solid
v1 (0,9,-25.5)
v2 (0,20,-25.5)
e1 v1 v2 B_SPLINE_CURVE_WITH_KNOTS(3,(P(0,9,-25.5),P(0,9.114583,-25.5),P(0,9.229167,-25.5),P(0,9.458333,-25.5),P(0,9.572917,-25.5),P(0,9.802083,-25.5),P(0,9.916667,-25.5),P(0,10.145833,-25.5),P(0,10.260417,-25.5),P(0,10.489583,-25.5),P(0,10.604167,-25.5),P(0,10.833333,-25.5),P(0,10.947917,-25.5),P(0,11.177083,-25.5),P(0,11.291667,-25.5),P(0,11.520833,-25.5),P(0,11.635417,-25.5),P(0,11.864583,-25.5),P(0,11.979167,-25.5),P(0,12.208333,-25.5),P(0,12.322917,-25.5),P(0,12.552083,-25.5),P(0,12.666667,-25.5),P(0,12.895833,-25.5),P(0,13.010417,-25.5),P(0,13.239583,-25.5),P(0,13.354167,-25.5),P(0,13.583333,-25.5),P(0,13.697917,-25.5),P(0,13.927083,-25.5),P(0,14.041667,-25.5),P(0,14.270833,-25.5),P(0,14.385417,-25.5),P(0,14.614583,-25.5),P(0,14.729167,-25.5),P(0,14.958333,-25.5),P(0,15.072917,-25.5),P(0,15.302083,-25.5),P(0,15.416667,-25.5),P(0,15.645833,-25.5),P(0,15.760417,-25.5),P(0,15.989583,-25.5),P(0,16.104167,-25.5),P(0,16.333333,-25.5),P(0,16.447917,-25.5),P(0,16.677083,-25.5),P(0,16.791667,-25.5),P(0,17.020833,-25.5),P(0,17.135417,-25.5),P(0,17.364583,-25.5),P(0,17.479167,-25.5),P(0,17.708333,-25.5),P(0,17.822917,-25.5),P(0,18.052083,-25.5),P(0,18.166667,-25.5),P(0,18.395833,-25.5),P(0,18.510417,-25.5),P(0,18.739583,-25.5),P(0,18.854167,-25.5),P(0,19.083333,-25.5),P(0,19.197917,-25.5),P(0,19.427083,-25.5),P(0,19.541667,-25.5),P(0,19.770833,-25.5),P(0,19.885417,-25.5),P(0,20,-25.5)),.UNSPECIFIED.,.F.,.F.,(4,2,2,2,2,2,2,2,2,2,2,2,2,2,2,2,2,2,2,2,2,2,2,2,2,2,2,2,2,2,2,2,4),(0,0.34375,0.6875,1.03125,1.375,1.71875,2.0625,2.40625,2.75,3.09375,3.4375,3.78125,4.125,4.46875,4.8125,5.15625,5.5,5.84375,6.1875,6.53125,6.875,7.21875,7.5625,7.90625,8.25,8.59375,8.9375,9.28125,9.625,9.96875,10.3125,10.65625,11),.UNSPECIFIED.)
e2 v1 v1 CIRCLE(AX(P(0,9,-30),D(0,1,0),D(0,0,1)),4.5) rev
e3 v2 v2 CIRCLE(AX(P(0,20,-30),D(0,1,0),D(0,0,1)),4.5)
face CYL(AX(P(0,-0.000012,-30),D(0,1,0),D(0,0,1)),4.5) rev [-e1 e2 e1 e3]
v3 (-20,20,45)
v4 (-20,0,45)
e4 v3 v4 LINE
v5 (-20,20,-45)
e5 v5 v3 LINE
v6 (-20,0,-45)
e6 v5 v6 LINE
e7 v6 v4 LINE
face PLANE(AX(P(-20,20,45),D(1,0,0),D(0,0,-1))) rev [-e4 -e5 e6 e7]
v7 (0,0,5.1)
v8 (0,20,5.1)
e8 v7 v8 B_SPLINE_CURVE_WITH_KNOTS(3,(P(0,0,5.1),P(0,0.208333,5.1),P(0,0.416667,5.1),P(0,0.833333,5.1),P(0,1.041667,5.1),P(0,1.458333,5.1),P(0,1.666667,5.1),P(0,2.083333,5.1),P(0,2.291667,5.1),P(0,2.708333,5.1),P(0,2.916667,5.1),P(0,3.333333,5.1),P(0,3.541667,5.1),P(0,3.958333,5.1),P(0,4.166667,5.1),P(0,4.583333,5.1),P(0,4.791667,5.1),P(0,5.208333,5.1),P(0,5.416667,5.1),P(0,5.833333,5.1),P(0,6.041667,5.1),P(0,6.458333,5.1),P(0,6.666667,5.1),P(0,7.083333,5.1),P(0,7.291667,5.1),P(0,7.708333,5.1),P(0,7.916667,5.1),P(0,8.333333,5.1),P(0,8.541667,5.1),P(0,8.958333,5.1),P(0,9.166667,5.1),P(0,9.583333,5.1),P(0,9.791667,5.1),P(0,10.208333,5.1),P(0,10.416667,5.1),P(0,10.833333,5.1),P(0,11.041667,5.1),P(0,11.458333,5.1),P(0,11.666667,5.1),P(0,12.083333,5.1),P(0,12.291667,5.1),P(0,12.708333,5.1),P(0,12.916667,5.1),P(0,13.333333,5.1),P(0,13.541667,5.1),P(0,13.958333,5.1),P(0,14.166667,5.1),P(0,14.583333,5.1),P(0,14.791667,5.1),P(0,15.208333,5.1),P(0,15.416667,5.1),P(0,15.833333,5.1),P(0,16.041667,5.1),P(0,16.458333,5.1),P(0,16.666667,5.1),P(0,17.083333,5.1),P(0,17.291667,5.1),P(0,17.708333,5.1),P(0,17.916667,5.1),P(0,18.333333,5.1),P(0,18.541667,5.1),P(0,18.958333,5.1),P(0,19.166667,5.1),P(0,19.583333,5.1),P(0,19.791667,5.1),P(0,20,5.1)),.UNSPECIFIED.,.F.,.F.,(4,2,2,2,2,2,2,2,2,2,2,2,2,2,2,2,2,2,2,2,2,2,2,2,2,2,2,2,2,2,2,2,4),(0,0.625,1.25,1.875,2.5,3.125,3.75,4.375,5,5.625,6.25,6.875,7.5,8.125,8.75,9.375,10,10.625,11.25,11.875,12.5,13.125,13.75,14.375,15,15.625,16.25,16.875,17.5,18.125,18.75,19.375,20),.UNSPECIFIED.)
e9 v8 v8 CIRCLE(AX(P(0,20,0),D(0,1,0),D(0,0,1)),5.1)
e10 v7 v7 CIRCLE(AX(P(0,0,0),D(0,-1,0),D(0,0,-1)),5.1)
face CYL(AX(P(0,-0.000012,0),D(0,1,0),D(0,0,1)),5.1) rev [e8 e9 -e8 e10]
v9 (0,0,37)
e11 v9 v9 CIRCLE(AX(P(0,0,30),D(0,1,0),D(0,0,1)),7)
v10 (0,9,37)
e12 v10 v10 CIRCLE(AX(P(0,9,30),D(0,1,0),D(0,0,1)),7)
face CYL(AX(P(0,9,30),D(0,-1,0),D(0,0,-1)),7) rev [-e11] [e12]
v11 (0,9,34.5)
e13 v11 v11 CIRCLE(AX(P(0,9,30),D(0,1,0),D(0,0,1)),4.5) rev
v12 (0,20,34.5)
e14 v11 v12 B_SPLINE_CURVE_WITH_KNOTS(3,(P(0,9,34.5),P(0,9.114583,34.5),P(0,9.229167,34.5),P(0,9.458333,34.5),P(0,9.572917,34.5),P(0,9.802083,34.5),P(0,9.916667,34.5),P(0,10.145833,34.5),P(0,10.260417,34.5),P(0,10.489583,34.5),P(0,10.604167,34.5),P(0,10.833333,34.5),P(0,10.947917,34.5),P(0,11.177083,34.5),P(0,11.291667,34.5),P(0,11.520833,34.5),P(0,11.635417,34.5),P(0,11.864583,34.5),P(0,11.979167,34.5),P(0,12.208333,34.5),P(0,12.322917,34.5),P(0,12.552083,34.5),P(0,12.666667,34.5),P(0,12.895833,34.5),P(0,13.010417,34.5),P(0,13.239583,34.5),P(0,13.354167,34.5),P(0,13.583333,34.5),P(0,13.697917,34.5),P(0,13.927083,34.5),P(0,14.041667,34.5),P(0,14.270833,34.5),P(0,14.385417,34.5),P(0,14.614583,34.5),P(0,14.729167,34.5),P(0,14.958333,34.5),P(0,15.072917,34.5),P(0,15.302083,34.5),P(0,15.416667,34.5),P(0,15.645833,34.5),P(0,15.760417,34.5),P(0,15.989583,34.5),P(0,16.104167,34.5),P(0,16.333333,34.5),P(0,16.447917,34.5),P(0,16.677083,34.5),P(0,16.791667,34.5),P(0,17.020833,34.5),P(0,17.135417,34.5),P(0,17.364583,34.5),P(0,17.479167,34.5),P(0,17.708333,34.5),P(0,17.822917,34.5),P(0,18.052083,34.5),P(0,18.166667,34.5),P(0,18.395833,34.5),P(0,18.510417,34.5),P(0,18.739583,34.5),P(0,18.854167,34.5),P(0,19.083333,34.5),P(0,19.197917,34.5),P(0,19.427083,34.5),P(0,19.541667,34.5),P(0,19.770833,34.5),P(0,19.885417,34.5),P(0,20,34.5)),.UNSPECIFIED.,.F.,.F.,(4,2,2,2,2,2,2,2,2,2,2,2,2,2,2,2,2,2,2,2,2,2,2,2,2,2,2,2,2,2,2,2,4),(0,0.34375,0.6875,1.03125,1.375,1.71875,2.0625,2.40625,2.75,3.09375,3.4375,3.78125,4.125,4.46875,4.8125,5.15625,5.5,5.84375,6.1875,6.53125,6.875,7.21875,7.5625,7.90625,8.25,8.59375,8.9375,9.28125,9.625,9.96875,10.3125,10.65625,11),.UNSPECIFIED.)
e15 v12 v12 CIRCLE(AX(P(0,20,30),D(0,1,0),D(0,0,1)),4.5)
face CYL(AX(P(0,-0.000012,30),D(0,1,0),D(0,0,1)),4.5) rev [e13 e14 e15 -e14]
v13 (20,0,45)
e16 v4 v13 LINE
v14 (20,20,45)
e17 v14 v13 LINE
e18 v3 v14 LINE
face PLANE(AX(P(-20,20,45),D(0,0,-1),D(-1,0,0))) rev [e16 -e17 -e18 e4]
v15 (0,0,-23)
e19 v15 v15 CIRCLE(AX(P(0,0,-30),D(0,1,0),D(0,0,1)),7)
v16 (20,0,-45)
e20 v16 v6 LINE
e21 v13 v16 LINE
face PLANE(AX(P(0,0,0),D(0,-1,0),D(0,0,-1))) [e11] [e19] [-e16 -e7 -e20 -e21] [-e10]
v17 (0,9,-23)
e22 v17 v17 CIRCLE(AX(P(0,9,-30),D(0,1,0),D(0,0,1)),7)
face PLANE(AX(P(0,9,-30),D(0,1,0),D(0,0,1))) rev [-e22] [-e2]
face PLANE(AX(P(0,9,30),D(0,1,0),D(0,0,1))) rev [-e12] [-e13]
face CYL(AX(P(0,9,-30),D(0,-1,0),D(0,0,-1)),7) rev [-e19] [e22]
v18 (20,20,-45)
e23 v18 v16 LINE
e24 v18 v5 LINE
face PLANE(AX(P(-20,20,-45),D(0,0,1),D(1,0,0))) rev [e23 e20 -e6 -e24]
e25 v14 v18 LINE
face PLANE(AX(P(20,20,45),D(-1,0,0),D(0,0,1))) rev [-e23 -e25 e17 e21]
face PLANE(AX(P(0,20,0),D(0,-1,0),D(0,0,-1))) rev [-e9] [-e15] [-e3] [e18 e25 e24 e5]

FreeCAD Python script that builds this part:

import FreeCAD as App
import Part
import Sketcher

doc = App.newDocument("Part")
body = doc.addObject("PartDesign::Body", "Body")

# Sketch on XZ plane
sketch1 = body.newObject("Sketcher::SketchObject", "Sketch")
sketch1.AttachmentSupport = (doc.getObject("XZ_Plane"), [""])
sketch1.MapMode = "FlatFace"
sketch1.addGeometry([
    Part.LineSegment(App.Vector(-20, -45, 0), App.Vector(-20, 45, 0)),
    Part.LineSegment(App.Vector(-20, 45, 0), App.Vector(20, 45, 0)),
    Part.LineSegment(App.Vector(20, 45, 0), App.Vector(20, -45, 0)),
    Part.LineSegment(App.Vector(20, -45, 0), App.Vector(-20, -45, 0)),
], False)
sketch1.addConstraint([
    Sketcher.Constraint("Coincident", 0, 2, 1, 1),
    Sketcher.Constraint("Coincident", 1, 2, 2, 1),
    Sketcher.Constraint("Coincident", 2, 2, 3, 1),
    Sketcher.Constraint("Coincident", 3, 2, 0, 1),
    Sketcher.Constraint("Vertical", 0),
    Sketcher.Constraint("Horizontal", 1),
    Sketcher.Constraint("Vertical", 2),
    Sketcher.Constraint("Horizontal", 3),
    Sketcher.Constraint("Symmetric", 0, 2, 2, 2, -1, 1),
    Sketcher.Constraint("DistanceX", 1, 1, 1, 2, 40.0),
    Sketcher.Constraint("DistanceY", 0, 1, 0, 2, 90.0),
])
pad1 = body.newObject("PartDesign::Pad", "Pad")
pad1.Profile = sketch1
pad1.Length = 20
pad1.Reversed = True

# Sketch on XZ plane
sketch2 = body.newObject("Sketcher::SketchObject", "Sketch001")
sketch2.AttachmentSupport = (doc.getObject("XZ_Plane"), [""])
sketch2.MapMode = "FlatFace"
sketch2.addGeometry(Part.Circle(App.Vector(0, 0, 0), App.Vector(0, 0, 1), 5), False)
sketch2.addConstraint([
    Sketcher.Constraint("Coincident", 0, 3, -1, 1),
    Sketcher.Constraint("Diameter", 0, 10.2),
])
pocket1 = body.newObject("PartDesign::Pocket", "Pocket")
pocket1.Profile = sketch2
pocket1.Type = "ThroughAll"
pocket1.Midplane = True

# Sketch on XZ plane
sketch3 = body.newObject("Sketcher::SketchObject", "Sketch002")
sketch3.AttachmentSupport = (doc.getObject("XZ_Plane"), [""])
sketch3.MapMode = "FlatFace"
sketch3.addGeometry([
    Part.Circle(App.Vector(0, 30, 0), App.Vector(0, 0, 1), 4.5),
    Part.Circle(App.Vector(0, -30, 0), App.Vector(0, 0, 1), 4.5),
], False)
sketch3.addConstraint([
    Sketcher.Constraint("Equal", 0, 1),
    Sketcher.Constraint("Symmetric", 0, 3, 1, 3, -1, 1),
    Sketcher.Constraint("PointOnObject", 0, 3, -2),
    Sketcher.Constraint("Diameter", 0, 9.0),
    Sketcher.Constraint("DistanceY", -1, 1, 0, 3, 30.0),
])
pocket2 = body.newObject("PartDesign::Pocket", "Pocket001")
pocket2.Profile = sketch3
pocket2.Type = "ThroughAll"
pocket2.Midplane = True

# Sketch on XZ plane
sketch4 = body.newObject("Sketcher::SketchObject", "Sketch003")
sketch4.AttachmentSupport = (doc.getObject("XZ_Plane"), [""])
sketch4.MapMode = "FlatFace"
sketch4.addGeometry([
    Part.Circle(App.Vector(0, 30, 0), App.Vector(0, 0, 1), 7),
    Part.Circle(App.Vector(0, -30, 0), App.Vector(0, 0, 1), 7),
], False)
sketch4.addConstraint([
    Sketcher.Constraint("Equal", 0, 1),
    Sketcher.Constraint("Symmetric", 0, 3, 1, 3, -1, 1),
    Sketcher.Constraint("PointOnObject", 0, 3, -2),
    Sketcher.Constraint("Diameter", 0, 14.0),
    Sketcher.Constraint("DistanceY", -1, 1, 0, 3, 30.0),
])
pocket3 = body.newObject("PartDesign::Pocket", "Pocket002")
pocket3.Profile = sketch4
pocket3.Length = 9

doc.recompute()
